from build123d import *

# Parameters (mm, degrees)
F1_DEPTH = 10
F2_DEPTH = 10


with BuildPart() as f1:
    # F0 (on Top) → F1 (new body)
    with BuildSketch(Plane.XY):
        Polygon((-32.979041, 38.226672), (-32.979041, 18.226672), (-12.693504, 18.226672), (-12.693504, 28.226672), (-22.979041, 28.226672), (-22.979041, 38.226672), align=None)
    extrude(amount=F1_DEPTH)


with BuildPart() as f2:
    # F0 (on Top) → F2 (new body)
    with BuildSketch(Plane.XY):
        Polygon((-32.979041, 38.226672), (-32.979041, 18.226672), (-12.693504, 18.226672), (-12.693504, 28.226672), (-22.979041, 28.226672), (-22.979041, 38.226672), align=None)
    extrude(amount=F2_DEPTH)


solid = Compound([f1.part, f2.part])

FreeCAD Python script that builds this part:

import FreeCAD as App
import Part
import Sketcher

V = App.Vector


def add_polygon(sketch, points):
    """Adds a closed chain of lines whose ends are joined by coincident constraints."""
    first, n = sketch.GeometryCount, len(points)
    for a, b in zip(points, points[1:] + points[:1]):
        sketch.addGeometry(Part.LineSegment(App.Vector(*a, 0), App.Vector(*b, 0)), False)
    for i in range(n):
        sketch.addConstraint(Sketcher.Constraint("Coincident", first + i, 2, first + (i + 1) % n, 1))

doc = App.newDocument("Part")
params = doc.addObject("Spreadsheet::Sheet", "Params")
for row, (alias, value) in enumerate([
    ("sketch1_width", "10 mm"),
    ("pad1_length", "10 mm"),
    ("sketch2_width", "10 mm"),
    ("pad2_length", "10 mm"),
], start=1):
    params.set(f"A{row}", alias)
    params.set(f"B{row}", "=" + value)
    params.setAlias(f"B{row}", alias)

body = doc.addObject("PartDesign::Body", "Body")

# Sketch on XY plane
sketch1 = doc.addObject("Sketcher::SketchObject", "Sketch")
body.addObject(sketch1)
sketch1.AttachmentSupport = (doc.XY_Plane, [""])
sketch1.MapMode = "FlatFace"
add_polygon(sketch1, [(-32.979041, 38.226672), (-32.979041, 18.226672), (-12.693504, 18.226672), (-12.693504, 28.226672), (-22.979041, 28.226672), (-22.979041, 38.226672)])  # lines 0-5
sketch1.addConstraint([
    Sketcher.Constraint("Vertical", 0),
    Sketcher.Constraint("Horizontal", 1),
    Sketcher.Constraint("Vertical", 2),
    Sketcher.Constraint("Horizontal", 3),
    Sketcher.Constraint("Vertical", 4),
    Sketcher.Constraint("Horizontal", 5),
    Sketcher.Constraint("Equal", 5, 2),
    Sketcher.Constraint("Equal", 2, 4),
    Sketcher.Constraint("DistanceX", 5, 2, 5, 1, 10.0),
    Sketcher.Constraint("DistanceX", 1, 1, 1, 2, 20.285537),
    Sketcher.Constraint("DistanceX", 0, 2, -1, 1, 32.979041),
    Sketcher.Constraint("DistanceY", -1, 1, 0, 2, 18.226672),
])
sketch1.setExpression("Constraints[14]", "Params.sketch1_width")
pad1 = doc.addObject("PartDesign::Pad", "Pad")
body.addObject(pad1)
pad1.Profile = sketch1
pad1.setExpression("Length", "Params.pad1_length")
body2 = doc.addObject("PartDesign::Body", "Body001")

# Sketch on XY plane
sketch2 = doc.addObject("Sketcher::SketchObject", "Sketch001")
body2.addObject(sketch2)
sketch2.AttachmentSupport = (doc.getObject("XY_Plane001"), [""])
sketch2.MapMode = "FlatFace"
add_polygon(sketch2, [(-32.979041, 38.226672), (-32.979041, 18.226672), (-12.693504, 18.226672), (-12.693504, 28.226672), (-22.979041, 28.226672), (-22.979041, 38.226672)])  # lines 0-5
sketch2.addConstraint([
    Sketcher.Constraint("Vertical", 0),
    Sketcher.Constraint("Horizontal", 1),
    Sketcher.Constraint("Vertical", 2),
    Sketcher.Constraint("Horizontal", 3),
    Sketcher.Constraint("Vertical", 4),
    Sketcher.Constraint("Horizontal", 5),
    Sketcher.Constraint("Equal", 5, 2),
    Sketcher.Constraint("Equal", 2, 4),
    Sketcher.Constraint("DistanceX", 5, 2, 5, 1, 10.0),
    Sketcher.Constraint("DistanceX", 1, 1, 1, 2, 20.285537),
    Sketcher.Constraint("DistanceX", 0, 2, -1, 1, 32.979041),
    Sketcher.Constraint("DistanceY", -1, 1, 0, 2, 18.226672),
])
sketch2.setExpression("Constraints[14]", "Params.sketch2_width")
pad2 = doc.addObject("PartDesign::Pad", "Pad001")
body2.addObject(pad2)
pad2.Profile = sketch2
pad2.setExpression("Length", "Params.pad2_length")

doc.recompute()
